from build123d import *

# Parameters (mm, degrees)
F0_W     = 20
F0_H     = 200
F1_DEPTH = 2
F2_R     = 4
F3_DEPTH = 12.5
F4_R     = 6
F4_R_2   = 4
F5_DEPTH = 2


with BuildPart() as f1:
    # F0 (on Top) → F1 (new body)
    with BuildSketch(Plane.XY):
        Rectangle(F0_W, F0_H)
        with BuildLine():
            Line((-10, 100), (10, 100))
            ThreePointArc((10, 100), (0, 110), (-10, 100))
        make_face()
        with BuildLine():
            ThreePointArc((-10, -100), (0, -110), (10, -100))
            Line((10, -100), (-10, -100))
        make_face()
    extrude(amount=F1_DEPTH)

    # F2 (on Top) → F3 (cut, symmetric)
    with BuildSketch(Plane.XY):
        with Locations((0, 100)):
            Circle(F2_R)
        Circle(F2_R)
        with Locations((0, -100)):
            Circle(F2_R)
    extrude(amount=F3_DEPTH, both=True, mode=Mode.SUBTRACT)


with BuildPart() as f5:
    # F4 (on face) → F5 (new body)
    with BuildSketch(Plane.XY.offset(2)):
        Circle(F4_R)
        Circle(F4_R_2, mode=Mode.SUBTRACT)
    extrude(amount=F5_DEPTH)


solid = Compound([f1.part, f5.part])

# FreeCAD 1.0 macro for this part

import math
import FreeCAD as App
import Part
import Sketcher
from FreeCAD import Vector

doc = App.newDocument("Part")
body = doc.addObject("PartDesign::Body", "Body")

sketch1 = body.newObject("Sketcher::SketchObject", "Sketch")
sketch1.AttachmentSupport = (doc.getObject("XY_Plane"), [""])
sketch1.MapMode = "FlatFace"
sketch1.addGeometry(Part.LineSegment(Vector(-10, 100, 0), Vector(-10, -100, 0)), False)
sketch1.addGeometry(Part.ArcOfCircle(Part.Circle(Vector(0, -100, 0), Vector(0, 0, 1), 10), math.radians(180), math.radians(360)), False)
sketch1.addGeometry(Part.LineSegment(Vector(10, -100, 0), Vector(10, 100, 0)), False)
sketch1.addGeometry(Part.ArcOfCircle(Part.Circle(Vector(0, 100, 0), Vector(0, 0, 1), 10), math.radians(0), math.radians(180)), False)
sketch1.addConstraint(Sketcher.Constraint("Tangent", 0, 2, 1, 1))
sketch1.addConstraint(Sketcher.Constraint("Tangent", 1, 2, 2, 1))
sketch1.addConstraint(Sketcher.Constraint("Tangent", 2, 2, 3, 1))
sketch1.addConstraint(Sketcher.Constraint("Tangent", 3, 2, 0, 1))
sketch1.addConstraint(Sketcher.Constraint("Vertical", 0))
sketch1.addConstraint(Sketcher.Constraint("Vertical", 2))
sketch1.addConstraint(Sketcher.Constraint("Symmetric", 1, 3, 3, 3, -1, 1))
sketch1.addConstraint(Sketcher.Constraint("Radius", 1, 10.0))
sketch1.addConstraint(Sketcher.Constraint("DistanceY", 0, 2, 0, 1, 200.0))
pad1 = body.newObject("PartDesign::Pad", "Pad")
pad1.Profile = sketch1
pad1.Length = 2

sketch2 = body.newObject("Sketcher::SketchObject", "Sketch001")
sketch2.AttachmentSupport = (doc.getObject("XY_Plane"), [""])
sketch2.MapMode = "FlatFace"
sketch2.addGeometry(Part.Circle(Vector(0, 100, 0), Vector(0, 0, 1), 4), False)
sketch2.addGeometry(Part.Circle(Vector(0, 0, 0), Vector(0, 0, 1), 4), False)
sketch2.addGeometry(Part.Circle(Vector(0, -100, 0), Vector(0, 0, 1), 4), False)
sketch2.addConstraint(Sketcher.Constraint("Coincident", 1, 3, -1, 1))
sketch2.addConstraint(Sketcher.Constraint("Equal", 0, 1))
sketch2.addConstraint(Sketcher.Constraint("Equal", 1, 2))
sketch2.addConstraint(Sketcher.Constraint("Symmetric", 0, 3, 2, 3, -1, 1))
sketch2.addConstraint(Sketcher.Constraint("PointOnObject", 0, 3, -2))
sketch2.addConstraint(Sketcher.Constraint("Diameter", 0, 8.0))
sketch2.addConstraint(Sketcher.Constraint("DistanceY", -1, 1, 0, 3, 100.0))
pocket1 = body.newObject("PartDesign::Pocket", "Pocket")
pocket1.Profile = sketch2
pocket1.Length = 25
pocket1.Midplane = True
body2 = doc.addObject("PartDesign::Body", "Body001")

sketch3 = body2.newObject("Sketcher::SketchObject", "Sketch002")
sketch3.AttachmentSupport = (doc.getObject("XY_Plane001"), [""])
sketch3.MapMode = "FlatFace"
sketch3.AttachmentOffset = App.Placement(Vector(0, 0, 2), App.Rotation())
sketch3.addGeometry(Part.Circle(Vector(0, 0, 0), Vector(0, 0, 1), 6), False)
sketch3.addGeometry(Part.Circle(Vector(0, 0, 0), Vector(0, 0, 1), 4), False)
sketch3.addConstraint(Sketcher.Constraint("Coincident", 0, 3, -1, 1))
sketch3.addConstraint(Sketcher.Constraint("Coincident", 1, 3, -1, 1))
sketch3.addConstraint(Sketcher.Constraint("Diameter", 0, 12.0))
sketch3.addConstraint(Sketcher.Constraint("Diameter", 1, 8.0))
pad2 = body2.newObject("PartDesign::Pad", "Pad001")
pad2.Profile = sketch3
pad2.Length = 2

doc.recompute()
